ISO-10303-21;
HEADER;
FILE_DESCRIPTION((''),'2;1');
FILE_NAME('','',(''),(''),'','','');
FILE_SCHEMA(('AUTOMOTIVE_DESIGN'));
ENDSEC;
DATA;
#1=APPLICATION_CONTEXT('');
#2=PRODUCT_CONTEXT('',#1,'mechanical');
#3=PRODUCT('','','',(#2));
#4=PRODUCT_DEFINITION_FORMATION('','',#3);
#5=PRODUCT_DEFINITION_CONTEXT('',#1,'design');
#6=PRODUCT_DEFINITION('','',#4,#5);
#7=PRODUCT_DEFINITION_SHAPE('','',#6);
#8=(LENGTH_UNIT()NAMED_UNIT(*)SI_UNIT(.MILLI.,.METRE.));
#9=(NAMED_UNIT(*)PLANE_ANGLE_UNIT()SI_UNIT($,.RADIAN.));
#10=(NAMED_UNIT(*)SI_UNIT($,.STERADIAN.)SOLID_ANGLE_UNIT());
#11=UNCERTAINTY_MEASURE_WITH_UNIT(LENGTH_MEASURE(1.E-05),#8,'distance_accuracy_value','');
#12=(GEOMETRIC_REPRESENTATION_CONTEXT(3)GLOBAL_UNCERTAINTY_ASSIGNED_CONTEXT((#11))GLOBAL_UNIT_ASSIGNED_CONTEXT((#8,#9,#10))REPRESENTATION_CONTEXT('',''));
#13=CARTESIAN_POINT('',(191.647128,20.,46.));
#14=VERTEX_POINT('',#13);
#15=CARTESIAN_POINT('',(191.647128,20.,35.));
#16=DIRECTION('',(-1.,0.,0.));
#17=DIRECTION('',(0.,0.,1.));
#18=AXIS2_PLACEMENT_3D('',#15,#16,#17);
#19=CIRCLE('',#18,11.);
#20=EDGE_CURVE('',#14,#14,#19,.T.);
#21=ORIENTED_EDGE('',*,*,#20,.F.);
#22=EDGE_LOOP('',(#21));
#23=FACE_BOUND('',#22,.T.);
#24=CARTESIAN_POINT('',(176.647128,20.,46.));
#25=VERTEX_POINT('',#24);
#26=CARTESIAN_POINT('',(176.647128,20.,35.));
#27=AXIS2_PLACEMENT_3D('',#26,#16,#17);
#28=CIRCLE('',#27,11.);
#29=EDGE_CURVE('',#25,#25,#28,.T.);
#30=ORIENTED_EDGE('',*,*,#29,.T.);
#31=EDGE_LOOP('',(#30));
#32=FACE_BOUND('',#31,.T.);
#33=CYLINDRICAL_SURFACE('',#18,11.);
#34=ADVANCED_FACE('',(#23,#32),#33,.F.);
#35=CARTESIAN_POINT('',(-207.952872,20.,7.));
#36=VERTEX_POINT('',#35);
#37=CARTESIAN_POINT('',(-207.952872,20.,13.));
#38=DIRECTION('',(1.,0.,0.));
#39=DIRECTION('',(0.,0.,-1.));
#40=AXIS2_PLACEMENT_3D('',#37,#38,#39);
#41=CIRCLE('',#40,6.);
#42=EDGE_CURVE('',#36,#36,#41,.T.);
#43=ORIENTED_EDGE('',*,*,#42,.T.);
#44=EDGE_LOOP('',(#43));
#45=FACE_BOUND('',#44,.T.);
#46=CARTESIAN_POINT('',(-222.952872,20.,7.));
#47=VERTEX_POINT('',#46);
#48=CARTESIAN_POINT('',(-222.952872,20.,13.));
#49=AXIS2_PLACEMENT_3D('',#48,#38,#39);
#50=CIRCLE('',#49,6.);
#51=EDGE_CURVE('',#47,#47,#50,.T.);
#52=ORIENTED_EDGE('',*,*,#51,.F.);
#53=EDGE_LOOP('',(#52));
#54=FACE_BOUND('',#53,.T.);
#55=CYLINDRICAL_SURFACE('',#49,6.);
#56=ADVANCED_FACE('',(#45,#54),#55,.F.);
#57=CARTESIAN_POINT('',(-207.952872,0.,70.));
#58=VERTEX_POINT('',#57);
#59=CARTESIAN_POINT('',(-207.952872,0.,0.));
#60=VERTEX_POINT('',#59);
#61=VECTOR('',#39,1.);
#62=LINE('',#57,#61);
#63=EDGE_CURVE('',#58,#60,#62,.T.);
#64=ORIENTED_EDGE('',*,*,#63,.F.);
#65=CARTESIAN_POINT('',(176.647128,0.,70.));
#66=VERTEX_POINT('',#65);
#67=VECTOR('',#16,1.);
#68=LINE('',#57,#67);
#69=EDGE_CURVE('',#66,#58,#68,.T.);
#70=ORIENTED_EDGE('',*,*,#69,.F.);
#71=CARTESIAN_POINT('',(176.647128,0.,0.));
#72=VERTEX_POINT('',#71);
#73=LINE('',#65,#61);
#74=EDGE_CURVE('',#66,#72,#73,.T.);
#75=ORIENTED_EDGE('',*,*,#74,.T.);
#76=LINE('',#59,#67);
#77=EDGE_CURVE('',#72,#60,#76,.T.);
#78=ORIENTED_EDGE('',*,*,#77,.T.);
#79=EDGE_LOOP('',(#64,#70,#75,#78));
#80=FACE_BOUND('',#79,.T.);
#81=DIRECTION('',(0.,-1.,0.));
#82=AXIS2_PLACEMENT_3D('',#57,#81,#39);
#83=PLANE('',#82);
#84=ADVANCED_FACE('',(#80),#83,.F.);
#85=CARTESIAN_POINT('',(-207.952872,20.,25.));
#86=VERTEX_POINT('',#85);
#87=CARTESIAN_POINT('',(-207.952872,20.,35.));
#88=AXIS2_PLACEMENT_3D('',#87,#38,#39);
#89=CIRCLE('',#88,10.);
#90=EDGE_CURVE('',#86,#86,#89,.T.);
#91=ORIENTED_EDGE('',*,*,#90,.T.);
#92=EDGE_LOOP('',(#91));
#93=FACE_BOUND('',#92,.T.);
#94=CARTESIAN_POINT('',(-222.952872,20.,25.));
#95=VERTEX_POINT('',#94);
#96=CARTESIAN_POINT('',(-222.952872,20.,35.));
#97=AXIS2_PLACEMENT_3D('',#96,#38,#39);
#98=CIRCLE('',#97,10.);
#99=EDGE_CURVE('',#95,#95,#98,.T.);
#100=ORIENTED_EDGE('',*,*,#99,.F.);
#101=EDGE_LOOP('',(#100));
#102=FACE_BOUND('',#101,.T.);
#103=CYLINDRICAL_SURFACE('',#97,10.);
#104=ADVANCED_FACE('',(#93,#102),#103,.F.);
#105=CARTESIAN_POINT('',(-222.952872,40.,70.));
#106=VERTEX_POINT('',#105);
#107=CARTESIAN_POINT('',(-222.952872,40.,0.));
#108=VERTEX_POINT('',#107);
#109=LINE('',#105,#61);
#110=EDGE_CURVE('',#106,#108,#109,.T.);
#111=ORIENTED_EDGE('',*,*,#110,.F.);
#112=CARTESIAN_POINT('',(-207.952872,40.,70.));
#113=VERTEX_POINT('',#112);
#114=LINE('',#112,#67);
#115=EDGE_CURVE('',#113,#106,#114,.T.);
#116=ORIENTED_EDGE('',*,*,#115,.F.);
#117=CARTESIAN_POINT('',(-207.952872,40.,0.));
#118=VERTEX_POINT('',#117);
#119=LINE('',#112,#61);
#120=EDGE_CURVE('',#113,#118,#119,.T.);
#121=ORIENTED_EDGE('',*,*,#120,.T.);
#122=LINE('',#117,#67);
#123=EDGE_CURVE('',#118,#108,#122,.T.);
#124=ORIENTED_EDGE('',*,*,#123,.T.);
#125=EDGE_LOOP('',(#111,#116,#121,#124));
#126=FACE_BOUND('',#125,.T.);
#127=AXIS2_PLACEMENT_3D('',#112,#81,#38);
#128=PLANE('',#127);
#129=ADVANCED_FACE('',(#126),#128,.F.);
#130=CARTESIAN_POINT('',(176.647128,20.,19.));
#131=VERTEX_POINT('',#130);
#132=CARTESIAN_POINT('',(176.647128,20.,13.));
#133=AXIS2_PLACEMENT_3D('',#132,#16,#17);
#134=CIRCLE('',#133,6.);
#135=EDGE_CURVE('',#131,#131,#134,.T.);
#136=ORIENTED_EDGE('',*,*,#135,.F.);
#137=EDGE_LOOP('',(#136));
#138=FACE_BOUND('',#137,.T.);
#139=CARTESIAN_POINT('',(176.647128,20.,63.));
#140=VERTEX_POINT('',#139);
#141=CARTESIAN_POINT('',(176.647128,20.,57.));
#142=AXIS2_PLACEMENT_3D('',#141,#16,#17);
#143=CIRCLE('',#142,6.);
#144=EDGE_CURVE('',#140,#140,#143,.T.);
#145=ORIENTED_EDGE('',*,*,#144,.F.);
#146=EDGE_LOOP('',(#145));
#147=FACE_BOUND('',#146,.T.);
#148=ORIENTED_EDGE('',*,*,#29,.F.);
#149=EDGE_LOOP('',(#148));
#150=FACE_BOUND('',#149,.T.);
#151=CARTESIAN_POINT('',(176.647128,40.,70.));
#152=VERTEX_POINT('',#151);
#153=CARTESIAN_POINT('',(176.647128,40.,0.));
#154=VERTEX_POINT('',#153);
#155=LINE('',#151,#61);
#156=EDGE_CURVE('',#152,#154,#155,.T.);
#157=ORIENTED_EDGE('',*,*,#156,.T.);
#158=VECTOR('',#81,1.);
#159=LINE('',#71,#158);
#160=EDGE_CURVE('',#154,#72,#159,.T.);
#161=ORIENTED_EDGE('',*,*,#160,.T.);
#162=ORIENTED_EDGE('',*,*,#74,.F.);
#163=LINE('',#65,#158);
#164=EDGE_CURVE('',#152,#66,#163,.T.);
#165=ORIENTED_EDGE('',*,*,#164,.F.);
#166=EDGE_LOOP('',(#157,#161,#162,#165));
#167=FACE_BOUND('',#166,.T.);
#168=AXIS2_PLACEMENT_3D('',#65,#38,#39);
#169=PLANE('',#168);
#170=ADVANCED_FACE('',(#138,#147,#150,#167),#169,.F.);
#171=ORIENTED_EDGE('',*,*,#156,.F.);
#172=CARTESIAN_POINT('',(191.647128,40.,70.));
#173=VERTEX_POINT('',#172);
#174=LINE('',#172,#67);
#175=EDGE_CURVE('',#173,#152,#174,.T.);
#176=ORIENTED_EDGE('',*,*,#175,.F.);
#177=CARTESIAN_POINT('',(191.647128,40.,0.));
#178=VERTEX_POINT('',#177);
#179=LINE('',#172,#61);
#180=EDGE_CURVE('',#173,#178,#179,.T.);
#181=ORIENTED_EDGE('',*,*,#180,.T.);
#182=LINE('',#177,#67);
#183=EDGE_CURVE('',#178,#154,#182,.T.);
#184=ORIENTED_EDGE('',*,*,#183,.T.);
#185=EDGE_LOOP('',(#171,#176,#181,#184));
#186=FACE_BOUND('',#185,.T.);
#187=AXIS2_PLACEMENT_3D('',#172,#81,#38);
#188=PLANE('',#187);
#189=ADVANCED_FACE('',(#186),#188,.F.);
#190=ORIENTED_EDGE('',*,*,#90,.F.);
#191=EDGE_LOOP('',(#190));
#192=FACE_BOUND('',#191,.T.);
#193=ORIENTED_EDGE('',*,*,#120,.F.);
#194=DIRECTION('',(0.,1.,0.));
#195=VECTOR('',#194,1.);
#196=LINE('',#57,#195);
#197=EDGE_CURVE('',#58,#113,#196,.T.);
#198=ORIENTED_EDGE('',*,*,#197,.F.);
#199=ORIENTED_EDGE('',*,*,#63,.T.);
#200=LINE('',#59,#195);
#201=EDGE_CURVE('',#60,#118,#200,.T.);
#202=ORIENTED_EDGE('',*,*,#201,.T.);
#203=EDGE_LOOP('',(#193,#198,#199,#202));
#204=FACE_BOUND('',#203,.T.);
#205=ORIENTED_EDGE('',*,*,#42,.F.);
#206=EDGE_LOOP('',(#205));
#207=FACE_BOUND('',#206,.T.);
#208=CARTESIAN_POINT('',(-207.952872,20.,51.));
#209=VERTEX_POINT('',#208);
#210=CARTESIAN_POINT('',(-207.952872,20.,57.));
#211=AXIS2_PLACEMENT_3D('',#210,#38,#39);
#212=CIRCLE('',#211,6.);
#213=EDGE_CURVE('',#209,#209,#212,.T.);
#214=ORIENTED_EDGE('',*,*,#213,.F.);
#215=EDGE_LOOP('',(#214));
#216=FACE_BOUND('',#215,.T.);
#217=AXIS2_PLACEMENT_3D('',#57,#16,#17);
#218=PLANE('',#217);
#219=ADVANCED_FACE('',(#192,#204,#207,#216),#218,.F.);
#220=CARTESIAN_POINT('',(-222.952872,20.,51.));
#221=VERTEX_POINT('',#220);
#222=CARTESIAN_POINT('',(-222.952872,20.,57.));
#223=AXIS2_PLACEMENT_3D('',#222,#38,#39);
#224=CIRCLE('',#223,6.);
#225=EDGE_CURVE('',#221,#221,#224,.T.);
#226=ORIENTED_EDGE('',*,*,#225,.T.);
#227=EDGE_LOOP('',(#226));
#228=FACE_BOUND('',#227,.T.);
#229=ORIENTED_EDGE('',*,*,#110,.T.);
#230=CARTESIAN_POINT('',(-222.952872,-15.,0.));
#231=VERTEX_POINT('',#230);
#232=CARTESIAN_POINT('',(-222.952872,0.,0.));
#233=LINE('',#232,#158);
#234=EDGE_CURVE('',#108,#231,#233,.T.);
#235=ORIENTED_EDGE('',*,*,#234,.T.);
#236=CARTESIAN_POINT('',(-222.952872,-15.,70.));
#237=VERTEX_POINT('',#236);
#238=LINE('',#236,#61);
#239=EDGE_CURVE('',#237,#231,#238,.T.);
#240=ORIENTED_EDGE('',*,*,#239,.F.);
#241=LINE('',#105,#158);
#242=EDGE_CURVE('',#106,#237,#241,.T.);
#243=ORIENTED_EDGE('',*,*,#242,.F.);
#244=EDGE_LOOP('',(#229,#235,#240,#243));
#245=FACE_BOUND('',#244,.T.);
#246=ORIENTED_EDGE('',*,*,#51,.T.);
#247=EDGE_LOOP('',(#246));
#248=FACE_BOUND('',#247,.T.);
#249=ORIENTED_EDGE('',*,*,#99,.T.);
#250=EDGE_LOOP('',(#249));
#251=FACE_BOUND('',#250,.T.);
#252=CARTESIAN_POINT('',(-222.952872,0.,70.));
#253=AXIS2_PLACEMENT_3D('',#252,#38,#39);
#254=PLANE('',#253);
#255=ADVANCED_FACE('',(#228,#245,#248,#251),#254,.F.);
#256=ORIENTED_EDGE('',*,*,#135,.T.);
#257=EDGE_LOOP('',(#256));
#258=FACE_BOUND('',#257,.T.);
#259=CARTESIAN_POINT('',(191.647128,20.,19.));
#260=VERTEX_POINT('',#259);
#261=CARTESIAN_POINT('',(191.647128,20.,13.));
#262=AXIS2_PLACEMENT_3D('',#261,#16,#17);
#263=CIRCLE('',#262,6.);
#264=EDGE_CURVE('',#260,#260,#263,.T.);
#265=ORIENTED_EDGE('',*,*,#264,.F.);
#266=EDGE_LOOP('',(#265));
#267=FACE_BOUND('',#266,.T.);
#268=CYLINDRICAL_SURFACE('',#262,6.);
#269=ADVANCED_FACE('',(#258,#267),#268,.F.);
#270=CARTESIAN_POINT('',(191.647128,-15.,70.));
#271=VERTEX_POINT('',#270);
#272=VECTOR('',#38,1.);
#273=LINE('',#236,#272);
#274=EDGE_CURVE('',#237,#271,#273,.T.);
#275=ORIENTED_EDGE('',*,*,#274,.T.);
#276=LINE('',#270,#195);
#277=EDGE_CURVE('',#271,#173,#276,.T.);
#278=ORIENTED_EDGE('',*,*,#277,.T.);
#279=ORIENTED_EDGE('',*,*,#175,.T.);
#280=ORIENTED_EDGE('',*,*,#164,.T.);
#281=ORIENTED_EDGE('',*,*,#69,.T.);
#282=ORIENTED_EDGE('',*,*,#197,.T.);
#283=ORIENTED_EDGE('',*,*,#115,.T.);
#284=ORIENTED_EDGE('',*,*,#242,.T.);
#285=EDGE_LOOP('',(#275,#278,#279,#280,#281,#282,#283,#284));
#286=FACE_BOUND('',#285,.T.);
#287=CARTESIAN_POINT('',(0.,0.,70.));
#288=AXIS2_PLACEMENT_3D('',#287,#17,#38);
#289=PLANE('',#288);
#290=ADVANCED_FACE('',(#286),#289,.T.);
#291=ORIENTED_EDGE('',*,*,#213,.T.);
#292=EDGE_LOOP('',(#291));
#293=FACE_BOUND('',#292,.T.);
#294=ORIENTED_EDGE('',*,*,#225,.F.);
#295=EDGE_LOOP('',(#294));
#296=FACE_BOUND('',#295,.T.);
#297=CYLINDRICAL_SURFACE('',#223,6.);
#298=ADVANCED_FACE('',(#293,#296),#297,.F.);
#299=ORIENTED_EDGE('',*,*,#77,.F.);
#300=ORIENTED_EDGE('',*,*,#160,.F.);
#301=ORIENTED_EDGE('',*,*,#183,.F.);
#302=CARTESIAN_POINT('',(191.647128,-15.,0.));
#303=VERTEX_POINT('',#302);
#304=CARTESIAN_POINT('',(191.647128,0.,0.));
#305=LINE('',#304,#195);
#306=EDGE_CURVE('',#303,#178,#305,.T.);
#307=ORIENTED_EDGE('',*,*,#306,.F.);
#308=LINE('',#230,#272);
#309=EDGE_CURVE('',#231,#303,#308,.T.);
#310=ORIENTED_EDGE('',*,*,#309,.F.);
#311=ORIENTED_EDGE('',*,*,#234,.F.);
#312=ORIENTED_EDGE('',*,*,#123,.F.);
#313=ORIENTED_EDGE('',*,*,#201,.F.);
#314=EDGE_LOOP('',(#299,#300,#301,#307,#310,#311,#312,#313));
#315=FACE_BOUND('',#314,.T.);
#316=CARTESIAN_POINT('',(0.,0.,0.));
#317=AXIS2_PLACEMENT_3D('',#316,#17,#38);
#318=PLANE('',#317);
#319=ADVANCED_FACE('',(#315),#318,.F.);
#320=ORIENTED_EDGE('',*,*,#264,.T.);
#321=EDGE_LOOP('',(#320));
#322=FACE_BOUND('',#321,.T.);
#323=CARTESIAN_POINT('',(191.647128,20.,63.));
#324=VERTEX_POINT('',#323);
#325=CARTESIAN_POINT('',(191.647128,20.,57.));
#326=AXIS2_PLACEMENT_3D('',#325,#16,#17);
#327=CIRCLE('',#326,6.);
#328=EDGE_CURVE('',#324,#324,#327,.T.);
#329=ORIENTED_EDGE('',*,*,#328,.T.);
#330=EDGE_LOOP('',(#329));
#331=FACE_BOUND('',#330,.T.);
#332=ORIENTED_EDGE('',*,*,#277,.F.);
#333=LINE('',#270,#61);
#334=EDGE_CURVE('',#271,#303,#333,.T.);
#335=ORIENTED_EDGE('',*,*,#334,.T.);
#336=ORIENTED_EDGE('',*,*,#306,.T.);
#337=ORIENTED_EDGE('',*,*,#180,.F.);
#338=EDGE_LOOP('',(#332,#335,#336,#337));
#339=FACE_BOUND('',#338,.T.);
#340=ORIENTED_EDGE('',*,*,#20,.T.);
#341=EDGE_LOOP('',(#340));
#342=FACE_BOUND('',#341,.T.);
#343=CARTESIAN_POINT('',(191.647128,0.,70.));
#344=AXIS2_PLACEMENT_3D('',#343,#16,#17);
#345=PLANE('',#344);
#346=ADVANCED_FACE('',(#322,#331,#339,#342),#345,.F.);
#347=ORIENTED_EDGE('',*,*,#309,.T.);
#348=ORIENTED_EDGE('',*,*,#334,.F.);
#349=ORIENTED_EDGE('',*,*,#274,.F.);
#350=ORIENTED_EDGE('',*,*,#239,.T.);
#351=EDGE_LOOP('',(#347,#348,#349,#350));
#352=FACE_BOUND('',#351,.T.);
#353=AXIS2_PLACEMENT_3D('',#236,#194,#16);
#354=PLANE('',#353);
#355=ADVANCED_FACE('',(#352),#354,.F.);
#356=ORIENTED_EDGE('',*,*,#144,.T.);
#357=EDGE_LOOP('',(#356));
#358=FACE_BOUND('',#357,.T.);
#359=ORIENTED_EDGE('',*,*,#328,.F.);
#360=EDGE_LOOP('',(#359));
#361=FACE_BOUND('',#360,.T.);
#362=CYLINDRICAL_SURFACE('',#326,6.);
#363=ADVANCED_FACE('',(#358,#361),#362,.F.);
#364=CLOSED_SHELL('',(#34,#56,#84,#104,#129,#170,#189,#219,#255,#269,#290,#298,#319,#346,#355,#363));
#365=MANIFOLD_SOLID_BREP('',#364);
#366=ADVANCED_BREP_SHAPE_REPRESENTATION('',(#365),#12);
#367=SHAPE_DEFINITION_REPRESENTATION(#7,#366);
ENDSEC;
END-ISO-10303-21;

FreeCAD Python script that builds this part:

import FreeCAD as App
import Part
import Sketcher
from FreeCAD import Vector


def add_polygon(sketch, points):
    """Adds a closed chain of lines whose ends are joined by coincident constraints."""
    first, n = sketch.GeometryCount, len(points)
    for a, b in zip(points, points[1:] + points[:1]):
        sketch.addGeometry(Part.LineSegment(App.Vector(*a, 0), App.Vector(*b, 0)), False)
    for i in range(n):
        sketch.addConstraint(Sketcher.Constraint("Coincident", first + i, 2, first + (i + 1) % n, 1))

doc = App.newDocument("Part")
body = doc.addObject("PartDesign::Body", "Body")

# Sketch on XY plane
sketch1 = doc.addObject("Sketcher::SketchObject", "Sketch")
body.addObject(sketch1)
sketch1.AttachmentSupport = (doc.XY_Plane, [""])
sketch1.MapMode = "FlatFace"
add_polygon(sketch1, [(177, 0), (-208, 0), (-208, 40), (-223, 40), (-223, -15), (192, -15), (192, 40), (177, 40)])  # lines 0-7
sketch1.addConstraint([
    Sketcher.Constraint("Horizontal", 0),
    Sketcher.Constraint("Vertical", 1),
    Sketcher.Constraint("Horizontal", 2),
    Sketcher.Constraint("Vertical", 3),
    Sketcher.Constraint("Horizontal", 4),
    Sketcher.Constraint("Vertical", 5),
    Sketcher.Constraint("Horizontal", 6),
    Sketcher.Constraint("Vertical", 7),
    Sketcher.Constraint("PointOnObject", 0, 2, -1),
    Sketcher.Constraint("Horizontal", 2, 2, 5, 2),
    Sketcher.Constraint("Equal", 2, 6),
    Sketcher.Constraint("DistanceX", 2, 2, 2, 1, 15.0),
    Sketcher.Constraint("DistanceY", 1, 1, 1, 2, 40.0),
    Sketcher.Constraint("DistanceY", 3, 2, 3, 1, 55.0),
    Sketcher.Constraint("DistanceX", 0, 2, 0, 1, 384.6),
    Sketcher.Constraint("DistanceX", 0, 2, -1, 1, 207.952872),
])
pad1 = doc.addObject("PartDesign::Pad", "Pad")
body.addObject(pad1)
pad1.Profile = sketch1
pad1.Length = 70

# Sketch on YZ plane
sketch2 = doc.addObject("Sketcher::SketchObject", "Sketch001")
body.addObject(sketch2)
sketch2.AttachmentSupport = (doc.YZ_Plane, [""])
sketch2.MapMode = "FlatFace"
sketch2.AttachmentOffset = App.Placement(Vector(0, 0, -207.952872), App.Rotation())
sketch2.addGeometry(Part.Circle(Vector(20, 35, 0), Vector(0, 0, 1), 10), False)
sketch2.addConstraint([
    Sketcher.Constraint("Diameter", 0, 20.0),
    Sketcher.Constraint("DistanceX", -1, 1, 0, 3, 20.0),
    Sketcher.Constraint("DistanceY", -1, 1, 0, 3, 35.0),
])
pocket1 = doc.addObject("PartDesign::Pocket", "Pocket")
body.addObject(pocket1)
pocket1.Profile = sketch2
pocket1.Type = "ThroughAll"

# Sketch on YZ plane
sketch3 = doc.addObject("Sketcher::SketchObject", "Sketch002")
body.addObject(sketch3)
sketch3.AttachmentSupport = (doc.YZ_Plane, [""])
sketch3.MapMode = "FlatFace"
sketch3.AttachmentOffset = App.Placement(Vector(0, 0, -207.952872), App.Rotation())
sketch3.addGeometry([
    Part.Circle(Vector(20, 13, 0), Vector(0, 0, 1), 6),
    Part.Circle(Vector(20, 57, 0), Vector(0, 0, 1), 6),
], False)
sketch3.addConstraint([
    Sketcher.Constraint("Equal", 0, 1),
    Sketcher.Constraint("Vertical", 0, 3, 1, 3),
    Sketcher.Constraint("Diameter", 0, 12.0),
    Sketcher.Constraint("DistanceX", -1, 1, 0, 3, 20.0),
    Sketcher.Constraint("DistanceY", -1, 1, 0, 3, 13.0),
    Sketcher.Constraint("DistanceY", -1, 1, 1, 3, 57.0),
])
pocket2 = doc.addObject("PartDesign::Pocket", "Pocket001")
body.addObject(pocket2)
pocket2.Profile = sketch3
pocket2.Type = "ThroughAll"

# Sketch on YZ plane
sketch4 = doc.addObject("Sketcher::SketchObject", "Sketch003")
body.addObject(sketch4)
sketch4.AttachmentSupport = (doc.YZ_Plane, [""])
sketch4.MapMode = "FlatFace"
sketch4.AttachmentOffset = App.Placement(Vector(0, 0, 176.647128), App.Rotation())
sketch4.addGeometry(Part.Circle(Vector(20, 35, 0), Vector(0, 0, 1), 11), False)
sketch4.addConstraint([
    Sketcher.Constraint("Diameter", 0, 22.0),
    Sketcher.Constraint("DistanceX", -1, 1, 0, 3, 20.0),
    Sketcher.Constraint("DistanceY", -1, 1, 0, 3, 35.0),
])
pocket3 = doc.addObject("PartDesign::Pocket", "Pocket002")
body.addObject(pocket3)
pocket3.Profile = sketch4
pocket3.Type = "ThroughAll"
pocket3.Reversed = True

# Sketch on YZ plane
sketch5 = doc.addObject("Sketcher::SketchObject", "Sketch004")
body.addObject(sketch5)
sketch5.AttachmentSupport = (doc.YZ_Plane, [""])
sketch5.MapMode = "FlatFace"
sketch5.AttachmentOffset = App.Placement(Vector(0, 0, 176.647128), App.Rotation())
sketch5.addGeometry([
    Part.Circle(Vector(20, 57, 0), Vector(0, 0, 1), 6),
    Part.Circle(Vector(20, 13, 0), Vector(0, 0, 1), 6),
], False)
sketch5.addConstraint([
    Sketcher.Constraint("Equal", 0, 1),
    Sketcher.Constraint("Vertical", 0, 3, 1, 3),
    Sketcher.Constraint("Diameter", 0, 12.0),
    Sketcher.Constraint("DistanceX", -1, 1, 0, 3, 20.0),
    Sketcher.Constraint("DistanceY", -1, 1, 0, 3, 57.0),
    Sketcher.Constraint("DistanceY", -1, 1, 1, 3, 13.0),
])
pocket4 = doc.addObject("PartDesign::Pocket", "Pocket003")
body.addObject(pocket4)
pocket4.Profile = sketch5
pocket4.Type = "ThroughAll"
pocket4.Reversed = True

doc.recompute()
